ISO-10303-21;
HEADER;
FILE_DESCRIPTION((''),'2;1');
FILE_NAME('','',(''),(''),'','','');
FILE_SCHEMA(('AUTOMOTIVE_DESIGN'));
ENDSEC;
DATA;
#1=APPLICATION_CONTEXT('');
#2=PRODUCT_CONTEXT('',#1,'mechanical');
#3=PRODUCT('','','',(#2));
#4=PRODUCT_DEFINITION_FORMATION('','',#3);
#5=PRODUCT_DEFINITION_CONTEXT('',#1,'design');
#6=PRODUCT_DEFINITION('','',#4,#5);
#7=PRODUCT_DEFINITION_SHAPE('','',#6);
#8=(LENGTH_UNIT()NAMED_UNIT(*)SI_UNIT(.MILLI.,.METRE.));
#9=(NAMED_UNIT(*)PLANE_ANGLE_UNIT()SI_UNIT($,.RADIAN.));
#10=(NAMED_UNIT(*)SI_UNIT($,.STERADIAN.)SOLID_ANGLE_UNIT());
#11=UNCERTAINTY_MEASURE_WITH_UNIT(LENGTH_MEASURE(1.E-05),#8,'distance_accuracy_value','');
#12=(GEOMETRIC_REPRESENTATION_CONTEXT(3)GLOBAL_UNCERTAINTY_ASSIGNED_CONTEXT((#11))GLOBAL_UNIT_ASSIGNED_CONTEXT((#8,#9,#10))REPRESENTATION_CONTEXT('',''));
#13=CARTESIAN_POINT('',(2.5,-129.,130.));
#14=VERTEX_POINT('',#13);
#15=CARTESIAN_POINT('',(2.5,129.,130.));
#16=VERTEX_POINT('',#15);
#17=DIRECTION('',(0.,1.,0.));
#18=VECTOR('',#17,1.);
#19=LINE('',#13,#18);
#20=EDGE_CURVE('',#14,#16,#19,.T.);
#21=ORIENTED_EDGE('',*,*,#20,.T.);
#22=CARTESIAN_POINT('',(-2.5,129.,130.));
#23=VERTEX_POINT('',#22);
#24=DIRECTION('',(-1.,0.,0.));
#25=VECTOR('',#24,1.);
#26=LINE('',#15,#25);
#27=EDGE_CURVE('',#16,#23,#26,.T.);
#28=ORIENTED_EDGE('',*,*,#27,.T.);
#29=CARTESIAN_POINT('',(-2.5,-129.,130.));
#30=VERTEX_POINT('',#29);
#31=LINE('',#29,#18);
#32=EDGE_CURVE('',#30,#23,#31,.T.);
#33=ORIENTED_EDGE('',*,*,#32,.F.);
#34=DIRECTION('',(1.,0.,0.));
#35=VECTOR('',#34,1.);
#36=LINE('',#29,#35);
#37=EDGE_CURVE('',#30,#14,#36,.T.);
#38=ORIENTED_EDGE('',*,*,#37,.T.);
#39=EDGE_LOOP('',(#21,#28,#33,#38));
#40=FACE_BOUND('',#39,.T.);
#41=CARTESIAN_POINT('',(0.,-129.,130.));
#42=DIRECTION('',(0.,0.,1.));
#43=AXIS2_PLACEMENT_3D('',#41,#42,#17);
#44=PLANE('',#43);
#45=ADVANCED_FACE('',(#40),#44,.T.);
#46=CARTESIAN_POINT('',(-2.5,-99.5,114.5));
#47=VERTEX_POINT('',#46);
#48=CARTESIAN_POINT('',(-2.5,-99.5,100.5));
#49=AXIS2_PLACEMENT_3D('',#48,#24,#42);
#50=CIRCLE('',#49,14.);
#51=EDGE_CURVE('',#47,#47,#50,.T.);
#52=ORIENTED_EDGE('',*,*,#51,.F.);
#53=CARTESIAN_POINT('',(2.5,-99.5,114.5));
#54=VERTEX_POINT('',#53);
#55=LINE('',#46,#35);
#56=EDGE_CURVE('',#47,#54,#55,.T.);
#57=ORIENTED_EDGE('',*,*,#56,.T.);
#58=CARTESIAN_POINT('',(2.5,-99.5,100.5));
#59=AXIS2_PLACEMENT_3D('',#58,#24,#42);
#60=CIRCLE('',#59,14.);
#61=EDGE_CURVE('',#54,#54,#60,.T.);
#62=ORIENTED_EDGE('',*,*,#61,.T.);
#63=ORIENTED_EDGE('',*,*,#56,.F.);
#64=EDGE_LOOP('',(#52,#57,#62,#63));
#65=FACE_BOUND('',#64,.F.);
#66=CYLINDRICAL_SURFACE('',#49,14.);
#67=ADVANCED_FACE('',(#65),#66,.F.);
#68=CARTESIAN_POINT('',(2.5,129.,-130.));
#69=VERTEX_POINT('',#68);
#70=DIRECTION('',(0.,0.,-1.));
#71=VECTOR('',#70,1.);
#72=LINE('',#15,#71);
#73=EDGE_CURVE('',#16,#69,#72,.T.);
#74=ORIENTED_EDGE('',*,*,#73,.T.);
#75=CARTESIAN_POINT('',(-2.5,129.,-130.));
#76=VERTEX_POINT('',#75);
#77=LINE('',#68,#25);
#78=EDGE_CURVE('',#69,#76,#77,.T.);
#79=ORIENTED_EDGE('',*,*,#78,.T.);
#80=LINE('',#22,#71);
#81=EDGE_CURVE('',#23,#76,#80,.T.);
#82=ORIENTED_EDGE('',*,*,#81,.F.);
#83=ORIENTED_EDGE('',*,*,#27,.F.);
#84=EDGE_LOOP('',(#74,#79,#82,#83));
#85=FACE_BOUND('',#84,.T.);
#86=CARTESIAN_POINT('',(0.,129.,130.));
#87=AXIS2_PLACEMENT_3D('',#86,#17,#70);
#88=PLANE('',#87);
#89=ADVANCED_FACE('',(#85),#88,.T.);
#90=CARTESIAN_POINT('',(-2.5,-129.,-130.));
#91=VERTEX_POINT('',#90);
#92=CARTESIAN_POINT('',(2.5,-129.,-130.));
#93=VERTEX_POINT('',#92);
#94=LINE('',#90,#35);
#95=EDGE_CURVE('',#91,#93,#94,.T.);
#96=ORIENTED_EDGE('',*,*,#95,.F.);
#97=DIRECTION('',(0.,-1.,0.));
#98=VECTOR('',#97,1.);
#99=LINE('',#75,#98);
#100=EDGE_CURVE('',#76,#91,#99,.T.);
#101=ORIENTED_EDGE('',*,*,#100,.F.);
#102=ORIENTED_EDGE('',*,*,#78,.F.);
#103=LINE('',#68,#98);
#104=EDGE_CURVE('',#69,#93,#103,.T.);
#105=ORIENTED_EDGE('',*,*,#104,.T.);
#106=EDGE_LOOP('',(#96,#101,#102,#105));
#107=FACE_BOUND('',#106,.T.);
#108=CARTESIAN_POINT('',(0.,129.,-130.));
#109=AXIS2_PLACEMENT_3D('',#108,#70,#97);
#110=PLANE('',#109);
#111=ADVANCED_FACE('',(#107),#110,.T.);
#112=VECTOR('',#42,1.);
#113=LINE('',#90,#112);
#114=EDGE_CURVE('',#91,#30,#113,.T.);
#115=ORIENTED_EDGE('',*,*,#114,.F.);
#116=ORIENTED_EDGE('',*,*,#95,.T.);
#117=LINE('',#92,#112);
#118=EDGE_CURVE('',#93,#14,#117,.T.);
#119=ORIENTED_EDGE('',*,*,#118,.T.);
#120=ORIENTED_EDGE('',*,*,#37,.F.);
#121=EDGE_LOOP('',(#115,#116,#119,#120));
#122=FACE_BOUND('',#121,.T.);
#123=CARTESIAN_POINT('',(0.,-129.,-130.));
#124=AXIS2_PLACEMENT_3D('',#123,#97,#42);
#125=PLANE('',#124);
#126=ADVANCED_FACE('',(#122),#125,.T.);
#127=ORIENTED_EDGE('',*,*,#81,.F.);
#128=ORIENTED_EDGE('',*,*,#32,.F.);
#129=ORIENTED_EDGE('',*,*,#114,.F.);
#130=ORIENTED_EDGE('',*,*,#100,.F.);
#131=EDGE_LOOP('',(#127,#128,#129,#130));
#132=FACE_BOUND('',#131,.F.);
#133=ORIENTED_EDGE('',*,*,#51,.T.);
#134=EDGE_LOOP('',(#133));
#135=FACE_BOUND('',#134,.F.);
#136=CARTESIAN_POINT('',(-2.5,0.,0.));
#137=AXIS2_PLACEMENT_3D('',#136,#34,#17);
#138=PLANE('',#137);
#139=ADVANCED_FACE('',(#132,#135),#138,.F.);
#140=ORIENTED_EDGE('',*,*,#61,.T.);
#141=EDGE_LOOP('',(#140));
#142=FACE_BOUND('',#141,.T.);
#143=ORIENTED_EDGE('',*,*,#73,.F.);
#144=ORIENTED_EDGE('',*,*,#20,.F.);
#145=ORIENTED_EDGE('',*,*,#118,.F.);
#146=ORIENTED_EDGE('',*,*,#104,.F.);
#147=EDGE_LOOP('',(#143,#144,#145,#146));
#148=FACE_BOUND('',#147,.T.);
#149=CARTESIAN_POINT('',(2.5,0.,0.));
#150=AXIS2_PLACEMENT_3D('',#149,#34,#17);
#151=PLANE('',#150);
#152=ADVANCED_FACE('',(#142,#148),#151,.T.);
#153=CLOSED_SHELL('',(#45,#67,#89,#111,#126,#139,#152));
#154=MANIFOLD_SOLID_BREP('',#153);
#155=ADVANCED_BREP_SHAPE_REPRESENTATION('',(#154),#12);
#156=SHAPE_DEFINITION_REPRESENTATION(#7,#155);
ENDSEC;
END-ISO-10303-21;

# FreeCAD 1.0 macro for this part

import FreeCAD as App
import Part
import Sketcher

V = App.Vector
Q = App.Units.Quantity

doc = App.newDocument("Part")
body = doc.addObject("PartDesign::Body", "Body")

# Sketch on YZ plane
sketch1 = body.newObject("Sketcher::SketchObject", "Sketch")
sketch1.AttachmentSupport = (doc.getObject("YZ_Plane"), [""])
sketch1.MapMode = "FlatFace"
sketch1.addGeometry(Part.LineSegment(V(129, 130, 0), V(-129, 130, 0)), False)
sketch1.addGeometry(Part.LineSegment(V(-129, 130, 0), V(-129, -130, 0)), False)
sketch1.addGeometry(Part.LineSegment(V(-129, -130, 0), V(129, -130, 0)), False)
sketch1.addGeometry(Part.LineSegment(V(129, -130, 0), V(129, 130, 0)), False)
sketch1.addConstraint(Sketcher.Constraint("Coincident", 0, 2, 1, 1))
sketch1.addConstraint(Sketcher.Constraint("Coincident", 1, 2, 2, 1))
sketch1.addConstraint(Sketcher.Constraint("Coincident", 2, 2, 3, 1))
sketch1.addConstraint(Sketcher.Constraint("Coincident", 3, 2, 0, 1))
sketch1.addConstraint(Sketcher.Constraint("Horizontal", 0))
sketch1.addConstraint(Sketcher.Constraint("Vertical", 1))
sketch1.addConstraint(Sketcher.Constraint("Horizontal", 2))
sketch1.addConstraint(Sketcher.Constraint("Vertical", 3))
sketch1.addConstraint(Sketcher.Constraint("Symmetric", 0, 2, 2, 2, -1, 1))
sketch1.addConstraint(Sketcher.Constraint("DistanceX", 0, 2, 0, 1, Q("258 mm")))
sketch1.addConstraint(Sketcher.Constraint("DistanceY", 1, 2, 1, 1, Q("260 mm")))
pad1 = body.newObject("PartDesign::Pad", "Pad")
pad1.Profile = sketch1
pad1.Length = 5
pad1.Midplane = True

# Sketch on YZ plane
sketch2 = body.newObject("Sketcher::SketchObject", "Sketch001")
sketch2.AttachmentSupport = (doc.getObject("YZ_Plane"), [""])
sketch2.MapMode = "FlatFace"
sketch2.AttachmentOffset = App.Placement(V(0, 0, -2.5), App.Rotation())
sketch2.addGeometry(Part.Circle(V(-100, 100, 0), V(0, 0, 1), 14), False)
sketch2.addConstraint(Sketcher.Constraint("Diameter", 0, Q("28 mm")))
sketch2.addConstraint(Sketcher.Constraint("DistanceX", 0, 3, -1, 1, Q("99.5 mm")))
sketch2.addConstraint(Sketcher.Constraint("DistanceY", -1, 1, 0, 3, Q("100.5 mm")))
pocket1 = body.newObject("PartDesign::Pocket", "Pocket")
pocket1.Profile = sketch2
pocket1.Length = 5
pocket1.Reversed = True

doc.recompute()
